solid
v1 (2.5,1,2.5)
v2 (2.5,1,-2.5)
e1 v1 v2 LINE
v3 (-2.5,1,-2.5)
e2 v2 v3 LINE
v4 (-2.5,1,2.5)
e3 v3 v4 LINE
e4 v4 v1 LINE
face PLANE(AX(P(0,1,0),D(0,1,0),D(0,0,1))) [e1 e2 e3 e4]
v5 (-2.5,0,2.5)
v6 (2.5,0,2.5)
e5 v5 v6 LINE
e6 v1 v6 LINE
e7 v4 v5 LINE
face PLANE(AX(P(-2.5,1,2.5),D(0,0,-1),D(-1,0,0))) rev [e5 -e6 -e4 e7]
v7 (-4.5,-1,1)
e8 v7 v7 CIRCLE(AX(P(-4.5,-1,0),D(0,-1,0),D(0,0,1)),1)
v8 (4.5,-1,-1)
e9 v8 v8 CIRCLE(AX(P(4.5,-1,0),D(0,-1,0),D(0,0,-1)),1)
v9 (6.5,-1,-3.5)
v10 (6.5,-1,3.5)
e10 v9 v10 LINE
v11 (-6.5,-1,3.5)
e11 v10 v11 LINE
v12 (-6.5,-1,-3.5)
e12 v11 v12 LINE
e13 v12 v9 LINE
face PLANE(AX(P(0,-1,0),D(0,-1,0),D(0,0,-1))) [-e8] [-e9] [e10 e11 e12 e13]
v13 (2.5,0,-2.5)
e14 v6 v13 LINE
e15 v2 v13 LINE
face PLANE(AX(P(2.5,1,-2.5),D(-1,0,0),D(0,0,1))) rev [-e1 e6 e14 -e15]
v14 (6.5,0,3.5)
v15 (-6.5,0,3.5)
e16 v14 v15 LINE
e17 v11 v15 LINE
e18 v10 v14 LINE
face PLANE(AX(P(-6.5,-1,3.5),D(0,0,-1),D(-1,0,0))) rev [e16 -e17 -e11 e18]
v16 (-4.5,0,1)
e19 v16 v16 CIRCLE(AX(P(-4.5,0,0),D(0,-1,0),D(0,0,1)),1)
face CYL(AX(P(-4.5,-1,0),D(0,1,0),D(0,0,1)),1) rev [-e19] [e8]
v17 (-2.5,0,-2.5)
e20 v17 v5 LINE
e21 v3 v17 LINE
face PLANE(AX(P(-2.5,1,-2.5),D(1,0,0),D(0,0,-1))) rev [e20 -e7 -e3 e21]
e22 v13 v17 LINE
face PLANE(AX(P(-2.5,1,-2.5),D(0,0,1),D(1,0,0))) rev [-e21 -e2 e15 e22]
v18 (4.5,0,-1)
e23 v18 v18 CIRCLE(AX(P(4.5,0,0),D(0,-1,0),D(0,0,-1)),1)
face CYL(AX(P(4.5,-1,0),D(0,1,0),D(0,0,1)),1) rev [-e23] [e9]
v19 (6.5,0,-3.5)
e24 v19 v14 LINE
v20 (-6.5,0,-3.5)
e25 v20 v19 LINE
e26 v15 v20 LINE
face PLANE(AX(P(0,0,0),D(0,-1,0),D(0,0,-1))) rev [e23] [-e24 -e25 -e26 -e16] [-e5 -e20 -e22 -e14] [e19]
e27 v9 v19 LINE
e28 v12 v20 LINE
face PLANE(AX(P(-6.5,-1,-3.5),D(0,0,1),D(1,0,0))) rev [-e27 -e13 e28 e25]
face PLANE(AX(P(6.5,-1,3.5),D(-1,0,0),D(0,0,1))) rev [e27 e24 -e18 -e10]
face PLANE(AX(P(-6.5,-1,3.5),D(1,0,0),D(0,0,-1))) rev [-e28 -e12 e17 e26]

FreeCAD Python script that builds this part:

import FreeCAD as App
import Part
import Sketcher
from FreeCAD import Vector

doc = App.newDocument("Part")
body = doc.addObject("PartDesign::Body", "Body")

# Sketch on XZ plane
sketch1 = body.newObject("Sketcher::SketchObject", "Sketch")
sketch1.AttachmentSupport = (doc.getObject("XZ_Plane"), [""])
sketch1.MapMode = "FlatFace"
sketch1.addGeometry(Part.LineSegment(Vector(-2.5, -2.5, 0), Vector(-2.5, 2.5, 0)), False)
sketch1.addGeometry(Part.LineSegment(Vector(-2.5, 2.5, 0), Vector(2.5, 2.5, 0)), False)
sketch1.addGeometry(Part.LineSegment(Vector(2.5, 2.5, 0), Vector(2.5, -2.5, 0)), False)
sketch1.addGeometry(Part.LineSegment(Vector(2.5, -2.5, 0), Vector(-2.5, -2.5, 0)), False)
sketch1.addConstraint(Sketcher.Constraint("Coincident", 0, 2, 1, 1))
sketch1.addConstraint(Sketcher.Constraint("Coincident", 1, 2, 2, 1))
sketch1.addConstraint(Sketcher.Constraint("Coincident", 2, 2, 3, 1))
sketch1.addConstraint(Sketcher.Constraint("Coincident", 3, 2, 0, 1))
sketch1.addConstraint(Sketcher.Constraint("Vertical", 0))
sketch1.addConstraint(Sketcher.Constraint("Horizontal", 1))
sketch1.addConstraint(Sketcher.Constraint("Vertical", 2))
sketch1.addConstraint(Sketcher.Constraint("Horizontal", 3))
sketch1.addConstraint(Sketcher.Constraint("Symmetric", 0, 2, 2, 2, -1, 1))
sketch1.addConstraint(Sketcher.Constraint("Equal", 3, 0))
sketch1.addConstraint(Sketcher.Constraint("DistanceX", 1, 1, 1, 2, 5.0))
pad1 = body.newObject("PartDesign::Pad", "Pad")
pad1.Profile = sketch1
pad1.Length = 1
pad1.Reversed = True

# Sketch on XZ plane
sketch2 = body.newObject("Sketcher::SketchObject", "Sketch001")
sketch2.AttachmentSupport = (doc.getObject("XZ_Plane"), [""])
sketch2.MapMode = "FlatFace"
sketch2.addGeometry(Part.LineSegment(Vector(-6.5, 3.5, 0), Vector(-6.5, -3.5, 0)), False)
sketch2.addGeometry(Part.LineSegment(Vector(-6.5, -3.5, 0), Vector(6.5, -3.5, 0)), False)
sketch2.addGeometry(Part.LineSegment(Vector(6.5, -3.5, 0), Vector(6.5, 3.5, 0)), False)
sketch2.addGeometry(Part.LineSegment(Vector(6.5, 3.5, 0), Vector(-6.5, 3.5, 0)), False)
sketch2.addGeometry(Part.Circle(Vector(-4.5, 0, 0), Vector(0, 0, 1), 1), False)
sketch2.addGeometry(Part.Circle(Vector(4.5, 0, 0), Vector(0, 0, 1), 1), False)
sketch2.addConstraint(Sketcher.Constraint("Coincident", 0, 2, 1, 1))
sketch2.addConstraint(Sketcher.Constraint("Coincident", 1, 2, 2, 1))
sketch2.addConstraint(Sketcher.Constraint("Coincident", 2, 2, 3, 1))
sketch2.addConstraint(Sketcher.Constraint("Coincident", 3, 2, 0, 1))
sketch2.addConstraint(Sketcher.Constraint("Vertical", 0))
sketch2.addConstraint(Sketcher.Constraint("Horizontal", 1))
sketch2.addConstraint(Sketcher.Constraint("Vertical", 2))
sketch2.addConstraint(Sketcher.Constraint("Horizontal", 3))
sketch2.addConstraint(Sketcher.Constraint("Equal", 4, 5))
sketch2.addConstraint(Sketcher.Constraint("Symmetric", 4, 3, 5, 3, -1, 1))
sketch2.addConstraint(Sketcher.Constraint("Symmetric", 0, 2, 2, 2, -1, 1))
sketch2.addConstraint(Sketcher.Constraint("PointOnObject", 4, 3, -1))
sketch2.addConstraint(Sketcher.Constraint("Diameter", 4, 2.0))
sketch2.addConstraint(Sketcher.Constraint("DistanceX", 1, 1, 1, 2, 13.0))
sketch2.addConstraint(Sketcher.Constraint("DistanceY", 0, 2, 0, 1, 7.0))
sketch2.addConstraint(Sketcher.Constraint("DistanceX", 4, 3, 5, 3, 9.0))
pad2 = body.newObject("PartDesign::Pad", "Pad001")
pad2.Profile = sketch2
pad2.Length = 1

doc.recompute()
